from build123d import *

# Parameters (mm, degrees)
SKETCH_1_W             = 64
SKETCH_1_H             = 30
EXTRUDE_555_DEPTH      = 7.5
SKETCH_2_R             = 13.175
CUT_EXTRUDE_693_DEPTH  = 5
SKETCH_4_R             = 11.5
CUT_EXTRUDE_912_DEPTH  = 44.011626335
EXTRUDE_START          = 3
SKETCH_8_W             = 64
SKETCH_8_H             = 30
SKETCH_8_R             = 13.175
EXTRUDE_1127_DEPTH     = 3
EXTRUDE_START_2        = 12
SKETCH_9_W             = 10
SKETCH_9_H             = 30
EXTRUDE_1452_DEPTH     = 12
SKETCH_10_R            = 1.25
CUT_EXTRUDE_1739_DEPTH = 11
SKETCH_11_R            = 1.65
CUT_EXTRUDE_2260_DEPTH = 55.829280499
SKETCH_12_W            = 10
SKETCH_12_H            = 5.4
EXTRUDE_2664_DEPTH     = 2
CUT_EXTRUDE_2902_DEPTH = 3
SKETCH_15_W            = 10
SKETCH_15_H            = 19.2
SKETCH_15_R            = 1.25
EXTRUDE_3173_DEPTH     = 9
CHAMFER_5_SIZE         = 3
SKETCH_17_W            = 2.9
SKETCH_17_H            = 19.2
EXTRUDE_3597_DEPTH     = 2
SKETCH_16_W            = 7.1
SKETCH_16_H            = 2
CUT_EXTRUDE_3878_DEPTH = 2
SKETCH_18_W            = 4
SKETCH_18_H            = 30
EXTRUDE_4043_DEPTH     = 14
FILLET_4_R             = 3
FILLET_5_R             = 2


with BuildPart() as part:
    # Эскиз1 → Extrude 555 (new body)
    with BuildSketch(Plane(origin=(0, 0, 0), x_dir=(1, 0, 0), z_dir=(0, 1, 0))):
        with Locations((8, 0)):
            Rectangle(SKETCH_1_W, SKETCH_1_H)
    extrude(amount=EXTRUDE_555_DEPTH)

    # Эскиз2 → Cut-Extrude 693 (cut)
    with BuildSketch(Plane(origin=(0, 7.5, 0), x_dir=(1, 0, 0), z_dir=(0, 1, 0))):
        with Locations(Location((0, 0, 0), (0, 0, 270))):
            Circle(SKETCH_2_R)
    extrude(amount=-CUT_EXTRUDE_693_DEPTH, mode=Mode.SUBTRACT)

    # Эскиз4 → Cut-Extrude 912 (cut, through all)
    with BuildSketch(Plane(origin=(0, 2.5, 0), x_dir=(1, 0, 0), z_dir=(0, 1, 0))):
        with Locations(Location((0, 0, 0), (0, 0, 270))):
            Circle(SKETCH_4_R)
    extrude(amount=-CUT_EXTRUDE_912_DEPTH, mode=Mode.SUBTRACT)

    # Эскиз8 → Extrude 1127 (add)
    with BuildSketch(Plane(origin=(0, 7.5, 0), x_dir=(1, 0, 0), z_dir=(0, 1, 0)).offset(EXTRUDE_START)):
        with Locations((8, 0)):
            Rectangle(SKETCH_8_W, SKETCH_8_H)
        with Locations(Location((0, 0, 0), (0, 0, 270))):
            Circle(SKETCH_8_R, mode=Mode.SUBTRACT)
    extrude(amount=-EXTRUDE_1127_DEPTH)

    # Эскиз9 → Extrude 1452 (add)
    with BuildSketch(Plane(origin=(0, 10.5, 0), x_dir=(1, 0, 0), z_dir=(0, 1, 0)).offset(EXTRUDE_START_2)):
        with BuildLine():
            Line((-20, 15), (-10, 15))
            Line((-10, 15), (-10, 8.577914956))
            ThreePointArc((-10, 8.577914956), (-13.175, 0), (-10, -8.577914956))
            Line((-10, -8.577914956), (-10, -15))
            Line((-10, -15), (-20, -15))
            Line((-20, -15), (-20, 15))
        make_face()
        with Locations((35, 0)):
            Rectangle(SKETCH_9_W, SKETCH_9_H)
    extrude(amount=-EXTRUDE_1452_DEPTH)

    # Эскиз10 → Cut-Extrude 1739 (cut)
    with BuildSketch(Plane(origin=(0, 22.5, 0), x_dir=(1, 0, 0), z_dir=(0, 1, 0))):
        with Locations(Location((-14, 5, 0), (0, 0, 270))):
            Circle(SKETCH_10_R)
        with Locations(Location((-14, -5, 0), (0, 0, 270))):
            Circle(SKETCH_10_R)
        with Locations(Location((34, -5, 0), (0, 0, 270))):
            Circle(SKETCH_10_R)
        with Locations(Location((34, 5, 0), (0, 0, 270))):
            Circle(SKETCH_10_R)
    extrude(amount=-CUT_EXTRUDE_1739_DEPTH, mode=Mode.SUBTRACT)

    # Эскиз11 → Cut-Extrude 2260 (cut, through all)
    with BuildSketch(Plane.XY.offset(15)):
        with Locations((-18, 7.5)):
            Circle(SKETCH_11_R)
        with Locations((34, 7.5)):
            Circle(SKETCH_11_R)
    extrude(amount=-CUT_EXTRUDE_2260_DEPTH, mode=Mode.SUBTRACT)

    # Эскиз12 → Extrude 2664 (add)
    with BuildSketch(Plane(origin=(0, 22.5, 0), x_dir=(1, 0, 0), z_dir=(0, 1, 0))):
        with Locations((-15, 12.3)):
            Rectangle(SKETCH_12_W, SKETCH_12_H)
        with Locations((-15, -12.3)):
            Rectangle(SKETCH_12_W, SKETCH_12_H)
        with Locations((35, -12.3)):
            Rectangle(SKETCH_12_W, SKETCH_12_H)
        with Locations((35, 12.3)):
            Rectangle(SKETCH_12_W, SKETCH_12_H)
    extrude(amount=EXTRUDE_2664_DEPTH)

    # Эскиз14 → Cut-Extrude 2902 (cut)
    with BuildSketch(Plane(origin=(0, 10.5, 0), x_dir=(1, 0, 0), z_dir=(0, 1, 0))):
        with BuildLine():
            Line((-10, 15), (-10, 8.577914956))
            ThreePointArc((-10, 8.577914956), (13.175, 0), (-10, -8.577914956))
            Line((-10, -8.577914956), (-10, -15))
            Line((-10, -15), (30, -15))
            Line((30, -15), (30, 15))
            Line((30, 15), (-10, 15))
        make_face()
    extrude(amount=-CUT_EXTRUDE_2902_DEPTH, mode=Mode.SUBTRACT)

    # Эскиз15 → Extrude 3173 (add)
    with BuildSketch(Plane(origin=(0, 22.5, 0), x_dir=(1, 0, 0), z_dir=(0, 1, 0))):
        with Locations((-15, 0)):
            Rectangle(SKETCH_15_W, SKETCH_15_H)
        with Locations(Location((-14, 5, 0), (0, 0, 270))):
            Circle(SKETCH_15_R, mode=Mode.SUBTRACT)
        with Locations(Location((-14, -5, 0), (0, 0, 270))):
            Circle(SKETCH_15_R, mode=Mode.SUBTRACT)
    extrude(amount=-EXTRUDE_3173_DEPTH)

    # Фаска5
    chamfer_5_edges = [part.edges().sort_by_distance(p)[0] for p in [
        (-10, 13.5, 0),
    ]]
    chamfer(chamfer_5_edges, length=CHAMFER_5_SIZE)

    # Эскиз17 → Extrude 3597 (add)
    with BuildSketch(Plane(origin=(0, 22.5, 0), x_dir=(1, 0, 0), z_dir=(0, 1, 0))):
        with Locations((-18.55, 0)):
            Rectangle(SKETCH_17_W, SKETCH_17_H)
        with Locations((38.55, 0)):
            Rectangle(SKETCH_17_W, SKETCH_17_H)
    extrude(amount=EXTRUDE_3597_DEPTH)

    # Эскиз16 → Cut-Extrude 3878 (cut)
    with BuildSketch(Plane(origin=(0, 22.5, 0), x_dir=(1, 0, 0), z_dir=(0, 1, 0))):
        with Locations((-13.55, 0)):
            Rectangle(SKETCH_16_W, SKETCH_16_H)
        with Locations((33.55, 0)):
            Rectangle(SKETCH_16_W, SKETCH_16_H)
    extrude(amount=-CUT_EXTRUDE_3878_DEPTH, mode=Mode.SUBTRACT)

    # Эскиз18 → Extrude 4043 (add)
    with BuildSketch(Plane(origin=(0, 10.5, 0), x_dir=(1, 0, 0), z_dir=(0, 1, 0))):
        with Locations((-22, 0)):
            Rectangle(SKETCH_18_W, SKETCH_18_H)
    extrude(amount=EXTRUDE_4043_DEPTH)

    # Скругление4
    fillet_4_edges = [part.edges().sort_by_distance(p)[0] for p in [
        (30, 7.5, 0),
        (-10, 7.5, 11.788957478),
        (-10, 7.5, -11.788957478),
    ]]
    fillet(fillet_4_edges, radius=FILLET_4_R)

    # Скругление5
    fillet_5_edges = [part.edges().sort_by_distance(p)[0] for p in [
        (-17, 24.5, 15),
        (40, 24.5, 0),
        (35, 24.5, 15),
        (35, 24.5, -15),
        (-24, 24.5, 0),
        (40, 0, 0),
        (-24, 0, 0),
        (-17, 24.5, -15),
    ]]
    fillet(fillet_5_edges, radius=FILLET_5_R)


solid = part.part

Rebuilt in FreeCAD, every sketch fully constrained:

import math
import FreeCAD as App
import Part
import Sketcher
from FreeCAD import Vector


def edges_at(feature, points):
    """Names of the edges that pass closest to the given points."""
    edges = feature.Shape.Edges
    near = lambda p: min(range(len(edges)), key=lambda i: edges[i].distToShape(Part.Vertex(*p))[0])
    return sorted({f"Edge{near(p) + 1}" for p in points})


def add_polygon(sketch, points):
    """Adds a closed chain of lines whose ends are joined by coincident constraints."""
    first, n = sketch.GeometryCount, len(points)
    for a, b in zip(points, points[1:] + points[:1]):
        sketch.addGeometry(Part.LineSegment(App.Vector(*a, 0), App.Vector(*b, 0)), False)
    for i in range(n):
        sketch.addConstraint(Sketcher.Constraint("Coincident", first + i, 2, first + (i + 1) % n, 1))

doc = App.newDocument("Part")
body = doc.addObject("PartDesign::Body", "Body")

# Sketch on XZ plane
sketch1 = doc.addObject("Sketcher::SketchObject", "Sketch")
body.addObject(sketch1)
sketch1.AttachmentSupport = (doc.XZ_Plane, [""])
sketch1.MapMode = "FlatFace"
add_polygon(sketch1, [(-24, -15), (-24, 15), (40, 15), (40, -15)])  # lines 0-3
sketch1.addConstraint([
    Sketcher.Constraint("Vertical", 0),
    Sketcher.Constraint("Horizontal", 1),
    Sketcher.Constraint("Vertical", 2),
    Sketcher.Constraint("Horizontal", 3),
    Sketcher.Constraint("DistanceX", 1, 1, 1, 2, 64.0),
    Sketcher.Constraint("DistanceY", 0, 1, 0, 2, 30.0),
    Sketcher.Constraint("DistanceX", 0, 2, -1, 1, 24.0),
    Sketcher.Constraint("DistanceY", -1, 1, 0, 2, 15.0),
])
pad1 = doc.addObject("PartDesign::Pad", "Pad")
body.addObject(pad1)
pad1.Profile = sketch1
pad1.Length = 7.5
pad1.Reversed = True

# Sketch on XZ plane
sketch2 = doc.addObject("Sketcher::SketchObject", "Sketch001")
body.addObject(sketch2)
sketch2.AttachmentSupport = (doc.XZ_Plane, [""])
sketch2.MapMode = "FlatFace"
sketch2.AttachmentOffset = App.Placement(Vector(0, 0, -7.5), App.Rotation())
sketch2.addGeometry(Part.Circle(Vector(0, 0, 0), Vector(0, 0, 1), 13), False)
sketch2.addConstraint([
    Sketcher.Constraint("Coincident", 0, 3, -1, 1),
    Sketcher.Constraint("Diameter", 0, 26.35),
])
pocket1 = doc.addObject("PartDesign::Pocket", "Pocket")
body.addObject(pocket1)
pocket1.Profile = sketch2
pocket1.Length = 5
pocket1.Reversed = True

# Sketch on XZ plane
sketch3 = doc.addObject("Sketcher::SketchObject", "Sketch002")
body.addObject(sketch3)
sketch3.AttachmentSupport = (doc.XZ_Plane, [""])
sketch3.MapMode = "FlatFace"
sketch3.AttachmentOffset = App.Placement(Vector(0, 0, -2.5), App.Rotation())
sketch3.addGeometry(Part.Circle(Vector(0, 0, 0), Vector(0, 0, 1), 12), False)
sketch3.addConstraint([
    Sketcher.Constraint("Coincident", 0, 3, -1, 1),
    Sketcher.Constraint("Diameter", 0, 23.0),
])
pocket2 = doc.addObject("PartDesign::Pocket", "Pocket001")
body.addObject(pocket2)
pocket2.Profile = sketch3
pocket2.Type = "ThroughAll"
pocket2.Reversed = True

# Sketch on XZ plane
sketch4 = doc.addObject("Sketcher::SketchObject", "Sketch003")
body.addObject(sketch4)
sketch4.AttachmentSupport = (doc.XZ_Plane, [""])
sketch4.MapMode = "FlatFace"
sketch4.AttachmentOffset = App.Placement(Vector(0, 0, -10.5), App.Rotation())
add_polygon(sketch4, [(-24, -15), (-24, 15), (40, 15), (40, -15)])  # lines 0-3
sketch4.addGeometry(Part.Circle(Vector(0, 0, 0), Vector(0, 0, 1), 13), False)  # 4
sketch4.addConstraint([
    Sketcher.Constraint("Vertical", 0),
    Sketcher.Constraint("Horizontal", 1),
    Sketcher.Constraint("Vertical", 2),
    Sketcher.Constraint("Horizontal", 3),
    Sketcher.Constraint("Coincident", 4, 3, -1, 1),
    Sketcher.Constraint("Diameter", 4, 26.35),
    Sketcher.Constraint("DistanceX", 1, 1, 1, 2, 64.0),
    Sketcher.Constraint("DistanceY", 0, 1, 0, 2, 30.0),
    Sketcher.Constraint("DistanceX", 0, 2, -1, 1, 24.0),
    Sketcher.Constraint("DistanceY", -1, 1, 0, 2, 15.0),
])
pad2 = doc.addObject("PartDesign::Pad", "Pad001")
body.addObject(pad2)
pad2.Profile = sketch4
pad2.Length = 3

# Sketch on XZ plane
sketch5 = doc.addObject("Sketcher::SketchObject", "Sketch004")
body.addObject(sketch5)
sketch5.AttachmentSupport = (doc.XZ_Plane, [""])
sketch5.MapMode = "FlatFace"
sketch5.AttachmentOffset = App.Placement(Vector(0, 0, -22.5), App.Rotation())
sketch5.addGeometry(Part.LineSegment(Vector(-10, -15, 0), Vector(-20, -15, 0)), False)  # 0
sketch5.addGeometry(Part.LineSegment(Vector(-20, -15, 0), Vector(-20, 15, 0)), False)  # 1
sketch5.addGeometry(Part.LineSegment(Vector(-20, 15, 0), Vector(-10, 15, 0)), False)  # 2
sketch5.addGeometry(Part.LineSegment(Vector(-10, 15, 0), Vector(-10, 9, 0)), False)  # 3
sketch5.addGeometry(Part.ArcOfCircle(Part.Circle(Vector(0, 0, 0), Vector(0, 0, 1), 13), math.radians(139), math.radians(221)), False)  # 4
sketch5.addGeometry(Part.LineSegment(Vector(-10, -9, 0), Vector(-10, -15, 0)), False)  # 5
add_polygon(sketch5, [(30, -15), (30, 15), (40, 15), (40, -15)])  # lines 6-9
sketch5.addConstraint([
    Sketcher.Constraint("Coincident", 0, 2, 1, 1),
    Sketcher.Constraint("Coincident", 1, 2, 2, 1),
    Sketcher.Constraint("Coincident", 2, 2, 3, 1),
    Sketcher.Constraint("Coincident", 3, 2, 4, 1),
    Sketcher.Constraint("Coincident", 4, 2, 5, 1),
    Sketcher.Constraint("Coincident", 5, 2, 0, 1),
    Sketcher.Constraint("Horizontal", 0),
    Sketcher.Constraint("Vertical", 1),
    Sketcher.Constraint("Horizontal", 2),
    Sketcher.Constraint("Vertical", 3),
    Sketcher.Constraint("Vertical", 5),
    Sketcher.Constraint("Vertical", 6),
    Sketcher.Constraint("Horizontal", 7),
    Sketcher.Constraint("Vertical", 8),
    Sketcher.Constraint("Horizontal", 9),
    Sketcher.Constraint("Coincident", 4, 3, -1, 1),
    Sketcher.Constraint("Symmetric", 2, 2, 5, 2, -1),
    Sketcher.Constraint("Horizontal", 2, 2, 6, 2),
    Sketcher.Constraint("Horizontal", 5, 2, 8, 2),
    Sketcher.Constraint("Equal", 2, 7),
    Sketcher.Constraint("DistanceX", 0, 2, 0, 1, 10.0),
    Sketcher.Constraint("DistanceY", 1, 1, 1, 2, 30.0),
    Sketcher.Constraint("DistanceX", 0, 2, -1, 1, 20.0),
    Sketcher.Constraint("DistanceX", -1, 1, 6, 2, 30.0),
    Sketcher.Constraint("Radius", 4, 13.175),
])
pad3 = doc.addObject("PartDesign::Pad", "Pad002")
body.addObject(pad3)
pad3.Profile = sketch5
pad3.Length = 12

# Sketch on XZ plane
sketch6 = doc.addObject("Sketcher::SketchObject", "Sketch005")
body.addObject(sketch6)
sketch6.AttachmentSupport = (doc.XZ_Plane, [""])
sketch6.MapMode = "FlatFace"
sketch6.AttachmentOffset = App.Placement(Vector(0, 0, -22.5), App.Rotation())
sketch6.addGeometry([
    Part.Circle(Vector(-14, -5, 0), Vector(0, 0, 1), 1.2),
    Part.Circle(Vector(-14, 5, 0), Vector(0, 0, 1), 1.2),
    Part.Circle(Vector(34, 5, 0), Vector(0, 0, 1), 1.2),
    Part.Circle(Vector(34, -5, 0), Vector(0, 0, 1), 1.2),
], False)
sketch6.addConstraint([
    Sketcher.Constraint("Equal", 0, 1),
    Sketcher.Constraint("Equal", 1, 2),
    Sketcher.Constraint("Equal", 2, 3),
    Sketcher.Constraint("Symmetric", 0, 3, 1, 3, -1),
    Sketcher.Constraint("Symmetric", 2, 3, 3, 3, -1),
    Sketcher.Constraint("Horizontal", 1, 3, 2, 3),
    Sketcher.Constraint("Diameter", 0, 2.5),
    Sketcher.Constraint("DistanceX", 0, 3, -1, 1, 14.0),
    Sketcher.Constraint("DistanceY", 0, 3, -1, 1, 5.0),
    Sketcher.Constraint("DistanceX", -1, 1, 2, 3, 34.0),
])
pocket3 = doc.addObject("PartDesign::Pocket", "Pocket002")
body.addObject(pocket3)
pocket3.Profile = sketch6
pocket3.Length = 11
pocket3.Reversed = True

# Sketch on XY plane
sketch7 = doc.addObject("Sketcher::SketchObject", "Sketch006")
body.addObject(sketch7)
sketch7.AttachmentSupport = (doc.XY_Plane, [""])
sketch7.MapMode = "FlatFace"
sketch7.AttachmentOffset = App.Placement(Vector(0, 0, 15), App.Rotation())
sketch7.addGeometry([
    Part.Circle(Vector(-18, 7.5, 0), Vector(0, 0, 1), 1.6),
    Part.Circle(Vector(34, 7.5, 0), Vector(0, 0, 1), 1.6),
], False)
sketch7.addConstraint([
    Sketcher.Constraint("Equal", 0, 1),
    Sketcher.Constraint("Horizontal", 0, 3, 1, 3),
    Sketcher.Constraint("Diameter", 0, 3.3),
    Sketcher.Constraint("DistanceX", 0, 3, -1, 1, 18.0),
    Sketcher.Constraint("DistanceX", -1, 1, 1, 3, 34.0),
    Sketcher.Constraint("DistanceY", -1, 1, 0, 3, 7.5),
])
pocket4 = doc.addObject("PartDesign::Pocket", "Pocket003")
body.addObject(pocket4)
pocket4.Profile = sketch7
pocket4.Type = "ThroughAll"

# Sketch on XZ plane
sketch8 = doc.addObject("Sketcher::SketchObject", "Sketch007")
body.addObject(sketch8)
sketch8.AttachmentSupport = (doc.XZ_Plane, [""])
sketch8.MapMode = "FlatFace"
sketch8.AttachmentOffset = App.Placement(Vector(0, 0, -22.5), App.Rotation())
add_polygon(sketch8, [(-20, -15), (-20, -10), (-10, -10), (-10, -15)])  # lines 0-3
add_polygon(sketch8, [(-20, 10), (-20, 15), (-10, 15), (-10, 10)])  # lines 4-7
add_polygon(sketch8, [(30, 10), (30, 15), (40, 15), (40, 10)])  # lines 8-11
add_polygon(sketch8, [(30, -15), (30, -10), (40, -10), (40, -15)])  # lines 12-15
sketch8.addConstraint([
    Sketcher.Constraint("Vertical", 0),
    Sketcher.Constraint("Horizontal", 1),
    Sketcher.Constraint("Vertical", 2),
    Sketcher.Constraint("Horizontal", 3),
    Sketcher.Constraint("Vertical", 4),
    Sketcher.Constraint("Horizontal", 5),
    Sketcher.Constraint("Vertical", 6),
    Sketcher.Constraint("Horizontal", 7),
    Sketcher.Constraint("Vertical", 8),
    Sketcher.Constraint("Horizontal", 9),
    Sketcher.Constraint("Vertical", 10),
    Sketcher.Constraint("Horizontal", 11),
    Sketcher.Constraint("Vertical", 12),
    Sketcher.Constraint("Horizontal", 13),
    Sketcher.Constraint("Vertical", 14),
    Sketcher.Constraint("Horizontal", 15),
    Sketcher.Constraint("Symmetric", 3, 2, 4, 2, -1),
    Sketcher.Constraint("Symmetric", 1, 2, 6, 2, -1),
    Sketcher.Constraint("Symmetric", 11, 2, 12, 2, -1),
    Sketcher.Constraint("Symmetric", 9, 2, 14, 2, -1),
    Sketcher.Constraint("Horizontal", 5, 2, 8, 2),
    Sketcher.Constraint("Horizontal", 7, 2, 10, 2),
    Sketcher.Constraint("Equal", 7, 9),
    Sketcher.Constraint("DistanceX", 1, 1, 1, 2, 10.0),
    Sketcher.Constraint("DistanceY", 0, 1, 0, 2, 5.4),
    Sketcher.Constraint("DistanceX", 0, 2, -1, 1, 20.0),
    Sketcher.Constraint("DistanceY", 2, 2, -1, 1, 15.0),
    Sketcher.Constraint("DistanceX", -1, 1, 8, 2, 30.0),
])
pad4 = doc.addObject("PartDesign::Pad", "Pad003")
body.addObject(pad4)
pad4.Profile = sketch8
pad4.Length = 2
pad4.Reversed = True

# Sketch on XZ plane
sketch9 = doc.addObject("Sketcher::SketchObject", "Sketch008")
body.addObject(sketch9)
sketch9.AttachmentSupport = (doc.XZ_Plane, [""])
sketch9.MapMode = "FlatFace"
sketch9.AttachmentOffset = App.Placement(Vector(0, 0, -10.5), App.Rotation())
sketch9.addGeometry([
    Part.LineSegment(Vector(-10, -15, 0), Vector(-10, -9, 0)),  # 0
    Part.ArcOfCircle(Part.Circle(Vector(0, 0, 0), Vector(0, 0, 1), 13), math.radians(-139), math.radians(139)),  # 1
    Part.LineSegment(Vector(-10, 9, 0), Vector(-10, 15, 0)),  # 2
    Part.LineSegment(Vector(-10, 15, 0), Vector(30, 15, 0)),  # 3
    Part.LineSegment(Vector(30, 15, 0), Vector(30, -15, 0)),  # 4
    Part.LineSegment(Vector(30, -15, 0), Vector(-10, -15, 0)),  # 5
], False)
sketch9.addConstraint([
    Sketcher.Constraint("Coincident", 0, 2, 1, 1),
    Sketcher.Constraint("Coincident", 1, 2, 2, 1),
    Sketcher.Constraint("Coincident", 2, 2, 3, 1),
    Sketcher.Constraint("Coincident", 3, 2, 4, 1),
    Sketcher.Constraint("Coincident", 4, 2, 5, 1),
    Sketcher.Constraint("Coincident", 5, 2, 0, 1),
    Sketcher.Constraint("Vertical", 0),
    Sketcher.Constraint("Vertical", 2),
    Sketcher.Constraint("Horizontal", 3),
    Sketcher.Constraint("Vertical", 4),
    Sketcher.Constraint("Horizontal", 5),
    Sketcher.Constraint("Coincident", 1, 3, -1, 1),
    Sketcher.Constraint("Symmetric", 2, 2, 5, 2, -1),
    Sketcher.Constraint("DistanceX", 3, 1, 3, 2, 40.0),
    Sketcher.Constraint("DistanceY", 4, 2, 4, 1, 30.0),
    Sketcher.Constraint("DistanceX", 0, 2, -1, 1, 10.0),
    Sketcher.Constraint("Radius", 1, 13.175),
])
pocket5 = doc.addObject("PartDesign::Pocket", "Pocket004")
body.addObject(pocket5)
pocket5.Profile = sketch9
pocket5.Length = 3
pocket5.Reversed = True

# Sketch on XZ plane
sketch10 = doc.addObject("Sketcher::SketchObject", "Sketch009")
body.addObject(sketch10)
sketch10.AttachmentSupport = (doc.XZ_Plane, [""])
sketch10.MapMode = "FlatFace"
sketch10.AttachmentOffset = App.Placement(Vector(0, 0, -22.5), App.Rotation())
add_polygon(sketch10, [(-20, -9.6), (-20, 9.6), (-10, 9.6), (-10, -9.6)])  # lines 0-3
sketch10.addGeometry(Part.Circle(Vector(-14, 5, 0), Vector(0, 0, 1), 1.2), False)  # 4
sketch10.addGeometry(Part.Circle(Vector(-14, -5, 0), Vector(0, 0, 1), 1.2), False)  # 5
sketch10.addConstraint([
    Sketcher.Constraint("Vertical", 0),
    Sketcher.Constraint("Horizontal", 1),
    Sketcher.Constraint("Vertical", 2),
    Sketcher.Constraint("Horizontal", 3),
    Sketcher.Constraint("Equal", 4, 5),
    Sketcher.Constraint("Symmetric", 4, 3, 5, 3, -1),
    Sketcher.Constraint("Diameter", 4, 2.5),
    Sketcher.Constraint("DistanceX", 1, 1, 1, 2, 10.0),
    Sketcher.Constraint("DistanceY", 0, 1, 0, 2, 19.2),
    Sketcher.Constraint("DistanceX", 4, 3, -1, 1, 14.0),
    Sketcher.Constraint("DistanceY", -1, 1, 4, 3, 5.0),
    Sketcher.Constraint("DistanceX", 0, 2, -1, 1, 20.0),
    Sketcher.Constraint("DistanceY", -1, 1, 0, 2, 9.6),
])
pad5 = doc.addObject("PartDesign::Pad", "Pad004")
body.addObject(pad5)
pad5.Profile = sketch10
pad5.Length = 9
doc.recompute()

chamfer = doc.addObject("PartDesign::Chamfer", "Chamfer")
body.addObject(chamfer)
chamfer.Base = (pad5, edges_at(pad5, [(-10, 13.5, 0)]))
chamfer.Size = 3

# Sketch on XZ plane
sketch11 = doc.addObject("Sketcher::SketchObject", "Sketch010")
body.addObject(sketch11)
sketch11.AttachmentSupport = (doc.XZ_Plane, [""])
sketch11.MapMode = "FlatFace"
sketch11.AttachmentOffset = App.Placement(Vector(0, 0, -22.5), App.Rotation())
add_polygon(sketch11, [(-20, -9.6), (-20, 9.6), (-17.1, 9.6), (-17.1, -9.6)])  # lines 0-3
add_polygon(sketch11, [(37.1, -9.6), (37.1, 9.6), (40, 9.6), (40, -9.6)])  # lines 4-7
sketch11.addConstraint([
    Sketcher.Constraint("Vertical", 0),
    Sketcher.Constraint("Horizontal", 1),
    Sketcher.Constraint("Vertical", 2),
    Sketcher.Constraint("Horizontal", 3),
    Sketcher.Constraint("Vertical", 4),
    Sketcher.Constraint("Horizontal", 5),
    Sketcher.Constraint("Vertical", 6),
    Sketcher.Constraint("Horizontal", 7),
    Sketcher.Constraint("Horizontal", 1, 2, 4, 2),
    Sketcher.Constraint("Horizontal", 3, 2, 6, 2),
    Sketcher.Constraint("Equal", 3, 5),
    Sketcher.Constraint("DistanceX", 1, 1, 1, 2, 2.9),
    Sketcher.Constraint("DistanceY", 0, 1, 0, 2, 19.2),
    Sketcher.Constraint("DistanceX", 0, 2, -1, 1, 20.0),
    Sketcher.Constraint("DistanceX", -1, 1, 5, 2, 40.0),
    Sketcher.Constraint("DistanceY", -1, 1, 0, 2, 9.6),
])
pad6 = doc.addObject("PartDesign::Pad", "Pad005")
body.addObject(pad6)
pad6.Profile = sketch11
pad6.Length = 2
pad6.Reversed = True

# Sketch on XZ plane
sketch12 = doc.addObject("Sketcher::SketchObject", "Sketch011")
body.addObject(sketch12)
sketch12.AttachmentSupport = (doc.XZ_Plane, [""])
sketch12.MapMode = "FlatFace"
sketch12.AttachmentOffset = App.Placement(Vector(0, 0, -22.5), App.Rotation())
add_polygon(sketch12, [(-17.1, -1), (-17.1, 1), (-10, 1), (-10, -1)])  # lines 0-3
add_polygon(sketch12, [(30, -1), (30, 1), (37.1, 1), (37.1, -1)])  # lines 4-7
sketch12.addConstraint([
    Sketcher.Constraint("Vertical", 0),
    Sketcher.Constraint("Horizontal", 1),
    Sketcher.Constraint("Vertical", 2),
    Sketcher.Constraint("Horizontal", 3),
    Sketcher.Constraint("Vertical", 4),
    Sketcher.Constraint("Horizontal", 5),
    Sketcher.Constraint("Vertical", 6),
    Sketcher.Constraint("Horizontal", 7),
    Sketcher.Constraint("Horizontal", 1, 2, 4, 2),
    Sketcher.Constraint("Horizontal", 3, 2, 6, 2),
    Sketcher.Constraint("Equal", 3, 5),
    Sketcher.Constraint("DistanceY", 0, 1, 0, 2, 2.0),
    Sketcher.Constraint("DistanceX", 1, 1, 1, 2, 7.1),
    Sketcher.Constraint("DistanceY", -1, 1, 0, 2, 1.0),
    Sketcher.Constraint("DistanceX", 1, 2, -1, 1, 10.0),
    Sketcher.Constraint("DistanceX", -1, 1, 4, 2, 30.0),
])
pocket6 = doc.addObject("PartDesign::Pocket", "Pocket005")
body.addObject(pocket6)
pocket6.Profile = sketch12
pocket6.Length = 2
pocket6.Reversed = True

# Sketch on XZ plane
sketch13 = doc.addObject("Sketcher::SketchObject", "Sketch012")
body.addObject(sketch13)
sketch13.AttachmentSupport = (doc.XZ_Plane, [""])
sketch13.MapMode = "FlatFace"
sketch13.AttachmentOffset = App.Placement(Vector(0, 0, -10.5), App.Rotation())
add_polygon(sketch13, [(-24, -15), (-24, 15), (-20, 15), (-20, -15)])  # lines 0-3
sketch13.addConstraint([
    Sketcher.Constraint("Vertical", 0),
    Sketcher.Constraint("Horizontal", 1),
    Sketcher.Constraint("Vertical", 2),
    Sketcher.Constraint("Horizontal", 3),
    Sketcher.Constraint("DistanceX", 1, 1, 1, 2, 4.0),
    Sketcher.Constraint("DistanceY", 0, 1, 0, 2, 30.0),
    Sketcher.Constraint("DistanceX", 0, 2, -1, 1, 24.0),
    Sketcher.Constraint("DistanceY", -1, 1, 0, 2, 15.0),
])
pad7 = doc.addObject("PartDesign::Pad", "Pad006")
body.addObject(pad7)
pad7.Profile = sketch13
pad7.Length = 14
pad7.Reversed = True
doc.recompute()

fillet = doc.addObject("PartDesign::Fillet", "Fillet")
body.addObject(fillet)
fillet.Base = (pad7, edges_at(pad7, [(30, 7.5, 0), (-10, 7.5, 11.789), (-10, 7.5, -11.789)]))
fillet.Radius = 3
doc.recompute()

fillet2 = doc.addObject("PartDesign::Fillet", "Fillet001")
body.addObject(fillet2)
fillet2.Base = (fillet, edges_at(fillet, [
    (-17, 24.5, 15),
    (40, 24.5, 0),
    (35, 24.5, 15),
    (35, 24.5, -15),
    (-24, 24.5, 0),
    (40, 0, 0),
    (-24, 0, 0),
    (-17, 24.5, -15),
]))
fillet2.Radius = 2

doc.recompute()
